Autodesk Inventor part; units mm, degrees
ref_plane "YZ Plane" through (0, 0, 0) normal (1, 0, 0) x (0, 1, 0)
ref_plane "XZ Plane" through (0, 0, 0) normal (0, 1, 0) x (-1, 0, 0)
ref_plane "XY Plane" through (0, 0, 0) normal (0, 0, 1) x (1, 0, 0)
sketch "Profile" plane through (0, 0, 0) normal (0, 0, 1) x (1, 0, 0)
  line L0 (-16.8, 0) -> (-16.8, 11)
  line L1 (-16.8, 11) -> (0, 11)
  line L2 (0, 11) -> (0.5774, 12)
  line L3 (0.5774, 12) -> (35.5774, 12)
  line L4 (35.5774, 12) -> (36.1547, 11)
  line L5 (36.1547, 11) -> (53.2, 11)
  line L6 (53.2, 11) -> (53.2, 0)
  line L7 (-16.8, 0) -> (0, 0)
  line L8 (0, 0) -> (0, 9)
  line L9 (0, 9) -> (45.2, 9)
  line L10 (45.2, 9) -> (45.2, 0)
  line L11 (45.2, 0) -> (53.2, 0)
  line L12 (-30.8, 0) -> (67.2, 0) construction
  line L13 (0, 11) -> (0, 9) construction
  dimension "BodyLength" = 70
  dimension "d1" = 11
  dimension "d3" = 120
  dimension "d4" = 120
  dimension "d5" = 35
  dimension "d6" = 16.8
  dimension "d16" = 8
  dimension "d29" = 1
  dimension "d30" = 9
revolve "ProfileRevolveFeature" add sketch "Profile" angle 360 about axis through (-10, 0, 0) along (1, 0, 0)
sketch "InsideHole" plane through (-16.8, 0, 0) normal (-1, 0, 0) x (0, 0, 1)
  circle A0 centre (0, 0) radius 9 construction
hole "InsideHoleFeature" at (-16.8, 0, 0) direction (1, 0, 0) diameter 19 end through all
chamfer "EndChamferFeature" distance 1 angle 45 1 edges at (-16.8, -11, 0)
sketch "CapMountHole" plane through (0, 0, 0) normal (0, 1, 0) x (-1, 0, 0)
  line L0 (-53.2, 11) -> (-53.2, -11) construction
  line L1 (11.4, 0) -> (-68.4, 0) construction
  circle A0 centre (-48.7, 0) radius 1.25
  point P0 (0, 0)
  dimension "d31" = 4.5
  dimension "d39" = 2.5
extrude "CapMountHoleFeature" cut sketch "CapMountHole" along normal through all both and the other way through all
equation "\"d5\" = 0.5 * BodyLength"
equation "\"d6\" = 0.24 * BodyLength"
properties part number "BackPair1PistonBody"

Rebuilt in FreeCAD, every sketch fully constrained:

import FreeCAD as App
import Part
import Sketcher
from FreeCAD import Vector


def edges_at(feature, points):
    """Names of the edges that pass closest to the given points."""
    edges = feature.Shape.Edges
    near = lambda p: min(range(len(edges)), key=lambda i: edges[i].distToShape(Part.Vertex(*p))[0])
    return sorted({f"Edge{near(p) + 1}" for p in points})

doc = App.newDocument("Part")
params = doc.addObject("Spreadsheet::Sheet", "Params")
for row, (alias, value) in enumerate([
    ("sketch1_width", "8 mm"),
    ("sketch1_width2", "35 mm"),
    ("sketch1_height", "11 mm"),
    ("sketch1_height2", "9 mm"),
    ("sketch1_width3", "16.8 mm"),
    ("revolution_angle", "360 deg"),
    ("sketch2_diameter", "19 mm"),
    ("hole_diameter", "19 mm"),
    ("chamfer_size", "1 mm"),
    ("sketch3_diameter", "2.5 mm"),
], start=1):
    params.set(f"A{row}", alias)
    params.set(f"B{row}", "=" + value)
    params.setAlias(f"B{row}", alias)

body = doc.addObject("PartDesign::Body", "Body")

# Sketch on XY plane
sketch1 = doc.addObject("Sketcher::SketchObject", "Sketch")
body.addObject(sketch1)
sketch1.AttachmentSupport = (doc.XY_Plane, [""])
sketch1.MapMode = "FlatFace"
sketch1.addGeometry(Part.LineSegment(Vector(-16.8, 11, 0), Vector(-16.8, 0, 0)), False)
sketch1.addGeometry(Part.LineSegment(Vector(-16.8, 0, 0), Vector(0, 0, 0)), False)
sketch1.addGeometry(Part.LineSegment(Vector(0, 0, 0), Vector(0, 9, 0)), False)
sketch1.addGeometry(Part.LineSegment(Vector(0, 9, 0), Vector(45.2, 9, 0)), False)
sketch1.addGeometry(Part.LineSegment(Vector(45.2, 9, 0), Vector(45.2, 0, 0)), False)
sketch1.addGeometry(Part.LineSegment(Vector(45.2, 0, 0), Vector(53.2, 0, 0)), False)
sketch1.addGeometry(Part.LineSegment(Vector(53.2, 0, 0), Vector(53.2, 11, 0)), False)
sketch1.addGeometry(Part.LineSegment(Vector(53.2, 11, 0), Vector(36.2, 11, 0)), False)
sketch1.addGeometry(Part.LineSegment(Vector(36.2, 11, 0), Vector(35.6, 12, 0)), False)
sketch1.addGeometry(Part.LineSegment(Vector(35.6, 12, 0), Vector(0.6, 12, 0)), False)
sketch1.addGeometry(Part.LineSegment(Vector(0.6, 12, 0), Vector(0, 11, 0)), False)
sketch1.addGeometry(Part.LineSegment(Vector(0, 11, 0), Vector(-16.8, 11, 0)), False)
sketch1.addConstraint(Sketcher.Constraint("Coincident", 0, 2, 1, 1))
sketch1.addConstraint(Sketcher.Constraint("Coincident", 1, 2, 2, 1))
sketch1.addConstraint(Sketcher.Constraint("Coincident", 2, 2, 3, 1))
sketch1.addConstraint(Sketcher.Constraint("Coincident", 3, 2, 4, 1))
sketch1.addConstraint(Sketcher.Constraint("Coincident", 4, 2, 5, 1))
sketch1.addConstraint(Sketcher.Constraint("Coincident", 5, 2, 6, 1))
sketch1.addConstraint(Sketcher.Constraint("Coincident", 6, 2, 7, 1))
sketch1.addConstraint(Sketcher.Constraint("Coincident", 7, 2, 8, 1))
sketch1.addConstraint(Sketcher.Constraint("Coincident", 8, 2, 9, 1))
sketch1.addConstraint(Sketcher.Constraint("Coincident", 9, 2, 10, 1))
sketch1.addConstraint(Sketcher.Constraint("Coincident", 10, 2, 11, 1))
sketch1.addConstraint(Sketcher.Constraint("Coincident", 11, 2, 0, 1))
sketch1.addConstraint(Sketcher.Constraint("Vertical", 0))
sketch1.addConstraint(Sketcher.Constraint("Horizontal", 1))
sketch1.addConstraint(Sketcher.Constraint("Vertical", 2))
sketch1.addConstraint(Sketcher.Constraint("Horizontal", 3))
sketch1.addConstraint(Sketcher.Constraint("Vertical", 4))
sketch1.addConstraint(Sketcher.Constraint("Horizontal", 5))
sketch1.addConstraint(Sketcher.Constraint("Vertical", 6))
sketch1.addConstraint(Sketcher.Constraint("Horizontal", 7))
sketch1.addConstraint(Sketcher.Constraint("Horizontal", 9))
sketch1.addConstraint(Sketcher.Constraint("Horizontal", 11))
sketch1.addConstraint(Sketcher.Constraint("Coincident", 1, 2, -1, 1))
sketch1.addConstraint(Sketcher.Constraint("PointOnObject", 4, 2, -1))
sketch1.addConstraint(Sketcher.Constraint("PointOnObject", 10, 2, -2))
sketch1.addConstraint(Sketcher.Constraint("Horizontal", 7, 2, 10, 2))
sketch1.addConstraint(Sketcher.Constraint("Equal", 8, 10))
sketch1.addConstraint(Sketcher.Constraint("DistanceX", 5, 1, 5, 2, 8.0))
sketch1.addConstraint(Sketcher.Constraint("DistanceX", 9, 2, 9, 1, 35.0))
sketch1.addConstraint(Sketcher.Constraint("DistanceY", 0, 2, 0, 1, 11.0))
sketch1.addConstraint(Sketcher.Constraint("DistanceY", 2, 1, 2, 2, 9.0))
sketch1.addConstraint(Sketcher.Constraint("DistanceX", 1, 1, 1, 2, 16.8))
sketch1.addConstraint(Sketcher.Constraint("DistanceX", 0, 2, 5, 2, 70.0))
sketch1.addConstraint(Sketcher.Constraint("DistanceY", 7, 2, 8, 2, 1.0))
sketch1.addConstraint(Sketcher.Constraint("DistanceX", 7, 2, 7, 1, 17.0453))
sketch1.setExpression("Constraints[27]", "Params.sketch1_width")
sketch1.setExpression("Constraints[28]", "Params.sketch1_width2")
sketch1.setExpression("Constraints[29]", "Params.sketch1_height")
sketch1.setExpression("Constraints[30]", "Params.sketch1_height2")
sketch1.setExpression("Constraints[31]", "Params.sketch1_width3")
revolution = doc.addObject("PartDesign::Revolution", "Revolution")
body.addObject(revolution)
revolution.Profile = sketch1
revolution.ReferenceAxis = (sketch1, ["H_Axis"])
revolution.setExpression("Angle", "Params.revolution_angle")

# Sketch on YZ plane
sketch2 = doc.addObject("Sketcher::SketchObject", "Sketch001")
body.addObject(sketch2)
sketch2.AttachmentSupport = (doc.YZ_Plane, [""])
sketch2.MapMode = "FlatFace"
sketch2.AttachmentOffset = App.Placement(Vector(0, 0, -16.8), App.Rotation())
sketch2.addGeometry(Part.Circle(Vector(0, 0, 0), Vector(0, 0, 1), 10), False)
sketch2.addConstraint(Sketcher.Constraint("Coincident", 0, 3, -1, 1))
sketch2.addConstraint(Sketcher.Constraint("Diameter", 0, 19.0))
sketch2.setExpression("Constraints[1]", "Params.sketch2_diameter")
doc.recompute()
hole = doc.addObject("PartDesign::Hole", "Hole")
body.addObject(hole)
hole.Profile = sketch2
hole.ThreadType = "None"
hole.setExpression("Diameter", "Params.hole_diameter")
hole.DepthType = "ThroughAll"
hole.Reversed = True
doc.recompute()

chamfer = doc.addObject("PartDesign::Chamfer", "Chamfer")
body.addObject(chamfer)
chamfer.Base = (hole, edges_at(hole, [(-16.8, -11, 0)]))
chamfer.setExpression("Size", "Params.chamfer_size")

# Sketch on XZ plane
sketch3 = doc.addObject("Sketcher::SketchObject", "Sketch002")
body.addObject(sketch3)
sketch3.AttachmentSupport = (doc.XZ_Plane, [""])
sketch3.MapMode = "FlatFace"
sketch3.addGeometry(Part.Circle(Vector(48.7, 0, 0), Vector(0, 0, 1), 1.2), False)
sketch3.addConstraint(Sketcher.Constraint("PointOnObject", 0, 3, -1))
sketch3.addConstraint(Sketcher.Constraint("Diameter", 0, 2.5))
sketch3.addConstraint(Sketcher.Constraint("DistanceX", -1, 1, 0, 3, 48.7))
sketch3.setExpression("Constraints[1]", "Params.sketch3_diameter")
pocket1 = doc.addObject("PartDesign::Pocket", "Pocket")
body.addObject(pocket1)
pocket1.Profile = sketch3
pocket1.Type = "ThroughAll"
pocket1.Midplane = True

doc.recompute()
